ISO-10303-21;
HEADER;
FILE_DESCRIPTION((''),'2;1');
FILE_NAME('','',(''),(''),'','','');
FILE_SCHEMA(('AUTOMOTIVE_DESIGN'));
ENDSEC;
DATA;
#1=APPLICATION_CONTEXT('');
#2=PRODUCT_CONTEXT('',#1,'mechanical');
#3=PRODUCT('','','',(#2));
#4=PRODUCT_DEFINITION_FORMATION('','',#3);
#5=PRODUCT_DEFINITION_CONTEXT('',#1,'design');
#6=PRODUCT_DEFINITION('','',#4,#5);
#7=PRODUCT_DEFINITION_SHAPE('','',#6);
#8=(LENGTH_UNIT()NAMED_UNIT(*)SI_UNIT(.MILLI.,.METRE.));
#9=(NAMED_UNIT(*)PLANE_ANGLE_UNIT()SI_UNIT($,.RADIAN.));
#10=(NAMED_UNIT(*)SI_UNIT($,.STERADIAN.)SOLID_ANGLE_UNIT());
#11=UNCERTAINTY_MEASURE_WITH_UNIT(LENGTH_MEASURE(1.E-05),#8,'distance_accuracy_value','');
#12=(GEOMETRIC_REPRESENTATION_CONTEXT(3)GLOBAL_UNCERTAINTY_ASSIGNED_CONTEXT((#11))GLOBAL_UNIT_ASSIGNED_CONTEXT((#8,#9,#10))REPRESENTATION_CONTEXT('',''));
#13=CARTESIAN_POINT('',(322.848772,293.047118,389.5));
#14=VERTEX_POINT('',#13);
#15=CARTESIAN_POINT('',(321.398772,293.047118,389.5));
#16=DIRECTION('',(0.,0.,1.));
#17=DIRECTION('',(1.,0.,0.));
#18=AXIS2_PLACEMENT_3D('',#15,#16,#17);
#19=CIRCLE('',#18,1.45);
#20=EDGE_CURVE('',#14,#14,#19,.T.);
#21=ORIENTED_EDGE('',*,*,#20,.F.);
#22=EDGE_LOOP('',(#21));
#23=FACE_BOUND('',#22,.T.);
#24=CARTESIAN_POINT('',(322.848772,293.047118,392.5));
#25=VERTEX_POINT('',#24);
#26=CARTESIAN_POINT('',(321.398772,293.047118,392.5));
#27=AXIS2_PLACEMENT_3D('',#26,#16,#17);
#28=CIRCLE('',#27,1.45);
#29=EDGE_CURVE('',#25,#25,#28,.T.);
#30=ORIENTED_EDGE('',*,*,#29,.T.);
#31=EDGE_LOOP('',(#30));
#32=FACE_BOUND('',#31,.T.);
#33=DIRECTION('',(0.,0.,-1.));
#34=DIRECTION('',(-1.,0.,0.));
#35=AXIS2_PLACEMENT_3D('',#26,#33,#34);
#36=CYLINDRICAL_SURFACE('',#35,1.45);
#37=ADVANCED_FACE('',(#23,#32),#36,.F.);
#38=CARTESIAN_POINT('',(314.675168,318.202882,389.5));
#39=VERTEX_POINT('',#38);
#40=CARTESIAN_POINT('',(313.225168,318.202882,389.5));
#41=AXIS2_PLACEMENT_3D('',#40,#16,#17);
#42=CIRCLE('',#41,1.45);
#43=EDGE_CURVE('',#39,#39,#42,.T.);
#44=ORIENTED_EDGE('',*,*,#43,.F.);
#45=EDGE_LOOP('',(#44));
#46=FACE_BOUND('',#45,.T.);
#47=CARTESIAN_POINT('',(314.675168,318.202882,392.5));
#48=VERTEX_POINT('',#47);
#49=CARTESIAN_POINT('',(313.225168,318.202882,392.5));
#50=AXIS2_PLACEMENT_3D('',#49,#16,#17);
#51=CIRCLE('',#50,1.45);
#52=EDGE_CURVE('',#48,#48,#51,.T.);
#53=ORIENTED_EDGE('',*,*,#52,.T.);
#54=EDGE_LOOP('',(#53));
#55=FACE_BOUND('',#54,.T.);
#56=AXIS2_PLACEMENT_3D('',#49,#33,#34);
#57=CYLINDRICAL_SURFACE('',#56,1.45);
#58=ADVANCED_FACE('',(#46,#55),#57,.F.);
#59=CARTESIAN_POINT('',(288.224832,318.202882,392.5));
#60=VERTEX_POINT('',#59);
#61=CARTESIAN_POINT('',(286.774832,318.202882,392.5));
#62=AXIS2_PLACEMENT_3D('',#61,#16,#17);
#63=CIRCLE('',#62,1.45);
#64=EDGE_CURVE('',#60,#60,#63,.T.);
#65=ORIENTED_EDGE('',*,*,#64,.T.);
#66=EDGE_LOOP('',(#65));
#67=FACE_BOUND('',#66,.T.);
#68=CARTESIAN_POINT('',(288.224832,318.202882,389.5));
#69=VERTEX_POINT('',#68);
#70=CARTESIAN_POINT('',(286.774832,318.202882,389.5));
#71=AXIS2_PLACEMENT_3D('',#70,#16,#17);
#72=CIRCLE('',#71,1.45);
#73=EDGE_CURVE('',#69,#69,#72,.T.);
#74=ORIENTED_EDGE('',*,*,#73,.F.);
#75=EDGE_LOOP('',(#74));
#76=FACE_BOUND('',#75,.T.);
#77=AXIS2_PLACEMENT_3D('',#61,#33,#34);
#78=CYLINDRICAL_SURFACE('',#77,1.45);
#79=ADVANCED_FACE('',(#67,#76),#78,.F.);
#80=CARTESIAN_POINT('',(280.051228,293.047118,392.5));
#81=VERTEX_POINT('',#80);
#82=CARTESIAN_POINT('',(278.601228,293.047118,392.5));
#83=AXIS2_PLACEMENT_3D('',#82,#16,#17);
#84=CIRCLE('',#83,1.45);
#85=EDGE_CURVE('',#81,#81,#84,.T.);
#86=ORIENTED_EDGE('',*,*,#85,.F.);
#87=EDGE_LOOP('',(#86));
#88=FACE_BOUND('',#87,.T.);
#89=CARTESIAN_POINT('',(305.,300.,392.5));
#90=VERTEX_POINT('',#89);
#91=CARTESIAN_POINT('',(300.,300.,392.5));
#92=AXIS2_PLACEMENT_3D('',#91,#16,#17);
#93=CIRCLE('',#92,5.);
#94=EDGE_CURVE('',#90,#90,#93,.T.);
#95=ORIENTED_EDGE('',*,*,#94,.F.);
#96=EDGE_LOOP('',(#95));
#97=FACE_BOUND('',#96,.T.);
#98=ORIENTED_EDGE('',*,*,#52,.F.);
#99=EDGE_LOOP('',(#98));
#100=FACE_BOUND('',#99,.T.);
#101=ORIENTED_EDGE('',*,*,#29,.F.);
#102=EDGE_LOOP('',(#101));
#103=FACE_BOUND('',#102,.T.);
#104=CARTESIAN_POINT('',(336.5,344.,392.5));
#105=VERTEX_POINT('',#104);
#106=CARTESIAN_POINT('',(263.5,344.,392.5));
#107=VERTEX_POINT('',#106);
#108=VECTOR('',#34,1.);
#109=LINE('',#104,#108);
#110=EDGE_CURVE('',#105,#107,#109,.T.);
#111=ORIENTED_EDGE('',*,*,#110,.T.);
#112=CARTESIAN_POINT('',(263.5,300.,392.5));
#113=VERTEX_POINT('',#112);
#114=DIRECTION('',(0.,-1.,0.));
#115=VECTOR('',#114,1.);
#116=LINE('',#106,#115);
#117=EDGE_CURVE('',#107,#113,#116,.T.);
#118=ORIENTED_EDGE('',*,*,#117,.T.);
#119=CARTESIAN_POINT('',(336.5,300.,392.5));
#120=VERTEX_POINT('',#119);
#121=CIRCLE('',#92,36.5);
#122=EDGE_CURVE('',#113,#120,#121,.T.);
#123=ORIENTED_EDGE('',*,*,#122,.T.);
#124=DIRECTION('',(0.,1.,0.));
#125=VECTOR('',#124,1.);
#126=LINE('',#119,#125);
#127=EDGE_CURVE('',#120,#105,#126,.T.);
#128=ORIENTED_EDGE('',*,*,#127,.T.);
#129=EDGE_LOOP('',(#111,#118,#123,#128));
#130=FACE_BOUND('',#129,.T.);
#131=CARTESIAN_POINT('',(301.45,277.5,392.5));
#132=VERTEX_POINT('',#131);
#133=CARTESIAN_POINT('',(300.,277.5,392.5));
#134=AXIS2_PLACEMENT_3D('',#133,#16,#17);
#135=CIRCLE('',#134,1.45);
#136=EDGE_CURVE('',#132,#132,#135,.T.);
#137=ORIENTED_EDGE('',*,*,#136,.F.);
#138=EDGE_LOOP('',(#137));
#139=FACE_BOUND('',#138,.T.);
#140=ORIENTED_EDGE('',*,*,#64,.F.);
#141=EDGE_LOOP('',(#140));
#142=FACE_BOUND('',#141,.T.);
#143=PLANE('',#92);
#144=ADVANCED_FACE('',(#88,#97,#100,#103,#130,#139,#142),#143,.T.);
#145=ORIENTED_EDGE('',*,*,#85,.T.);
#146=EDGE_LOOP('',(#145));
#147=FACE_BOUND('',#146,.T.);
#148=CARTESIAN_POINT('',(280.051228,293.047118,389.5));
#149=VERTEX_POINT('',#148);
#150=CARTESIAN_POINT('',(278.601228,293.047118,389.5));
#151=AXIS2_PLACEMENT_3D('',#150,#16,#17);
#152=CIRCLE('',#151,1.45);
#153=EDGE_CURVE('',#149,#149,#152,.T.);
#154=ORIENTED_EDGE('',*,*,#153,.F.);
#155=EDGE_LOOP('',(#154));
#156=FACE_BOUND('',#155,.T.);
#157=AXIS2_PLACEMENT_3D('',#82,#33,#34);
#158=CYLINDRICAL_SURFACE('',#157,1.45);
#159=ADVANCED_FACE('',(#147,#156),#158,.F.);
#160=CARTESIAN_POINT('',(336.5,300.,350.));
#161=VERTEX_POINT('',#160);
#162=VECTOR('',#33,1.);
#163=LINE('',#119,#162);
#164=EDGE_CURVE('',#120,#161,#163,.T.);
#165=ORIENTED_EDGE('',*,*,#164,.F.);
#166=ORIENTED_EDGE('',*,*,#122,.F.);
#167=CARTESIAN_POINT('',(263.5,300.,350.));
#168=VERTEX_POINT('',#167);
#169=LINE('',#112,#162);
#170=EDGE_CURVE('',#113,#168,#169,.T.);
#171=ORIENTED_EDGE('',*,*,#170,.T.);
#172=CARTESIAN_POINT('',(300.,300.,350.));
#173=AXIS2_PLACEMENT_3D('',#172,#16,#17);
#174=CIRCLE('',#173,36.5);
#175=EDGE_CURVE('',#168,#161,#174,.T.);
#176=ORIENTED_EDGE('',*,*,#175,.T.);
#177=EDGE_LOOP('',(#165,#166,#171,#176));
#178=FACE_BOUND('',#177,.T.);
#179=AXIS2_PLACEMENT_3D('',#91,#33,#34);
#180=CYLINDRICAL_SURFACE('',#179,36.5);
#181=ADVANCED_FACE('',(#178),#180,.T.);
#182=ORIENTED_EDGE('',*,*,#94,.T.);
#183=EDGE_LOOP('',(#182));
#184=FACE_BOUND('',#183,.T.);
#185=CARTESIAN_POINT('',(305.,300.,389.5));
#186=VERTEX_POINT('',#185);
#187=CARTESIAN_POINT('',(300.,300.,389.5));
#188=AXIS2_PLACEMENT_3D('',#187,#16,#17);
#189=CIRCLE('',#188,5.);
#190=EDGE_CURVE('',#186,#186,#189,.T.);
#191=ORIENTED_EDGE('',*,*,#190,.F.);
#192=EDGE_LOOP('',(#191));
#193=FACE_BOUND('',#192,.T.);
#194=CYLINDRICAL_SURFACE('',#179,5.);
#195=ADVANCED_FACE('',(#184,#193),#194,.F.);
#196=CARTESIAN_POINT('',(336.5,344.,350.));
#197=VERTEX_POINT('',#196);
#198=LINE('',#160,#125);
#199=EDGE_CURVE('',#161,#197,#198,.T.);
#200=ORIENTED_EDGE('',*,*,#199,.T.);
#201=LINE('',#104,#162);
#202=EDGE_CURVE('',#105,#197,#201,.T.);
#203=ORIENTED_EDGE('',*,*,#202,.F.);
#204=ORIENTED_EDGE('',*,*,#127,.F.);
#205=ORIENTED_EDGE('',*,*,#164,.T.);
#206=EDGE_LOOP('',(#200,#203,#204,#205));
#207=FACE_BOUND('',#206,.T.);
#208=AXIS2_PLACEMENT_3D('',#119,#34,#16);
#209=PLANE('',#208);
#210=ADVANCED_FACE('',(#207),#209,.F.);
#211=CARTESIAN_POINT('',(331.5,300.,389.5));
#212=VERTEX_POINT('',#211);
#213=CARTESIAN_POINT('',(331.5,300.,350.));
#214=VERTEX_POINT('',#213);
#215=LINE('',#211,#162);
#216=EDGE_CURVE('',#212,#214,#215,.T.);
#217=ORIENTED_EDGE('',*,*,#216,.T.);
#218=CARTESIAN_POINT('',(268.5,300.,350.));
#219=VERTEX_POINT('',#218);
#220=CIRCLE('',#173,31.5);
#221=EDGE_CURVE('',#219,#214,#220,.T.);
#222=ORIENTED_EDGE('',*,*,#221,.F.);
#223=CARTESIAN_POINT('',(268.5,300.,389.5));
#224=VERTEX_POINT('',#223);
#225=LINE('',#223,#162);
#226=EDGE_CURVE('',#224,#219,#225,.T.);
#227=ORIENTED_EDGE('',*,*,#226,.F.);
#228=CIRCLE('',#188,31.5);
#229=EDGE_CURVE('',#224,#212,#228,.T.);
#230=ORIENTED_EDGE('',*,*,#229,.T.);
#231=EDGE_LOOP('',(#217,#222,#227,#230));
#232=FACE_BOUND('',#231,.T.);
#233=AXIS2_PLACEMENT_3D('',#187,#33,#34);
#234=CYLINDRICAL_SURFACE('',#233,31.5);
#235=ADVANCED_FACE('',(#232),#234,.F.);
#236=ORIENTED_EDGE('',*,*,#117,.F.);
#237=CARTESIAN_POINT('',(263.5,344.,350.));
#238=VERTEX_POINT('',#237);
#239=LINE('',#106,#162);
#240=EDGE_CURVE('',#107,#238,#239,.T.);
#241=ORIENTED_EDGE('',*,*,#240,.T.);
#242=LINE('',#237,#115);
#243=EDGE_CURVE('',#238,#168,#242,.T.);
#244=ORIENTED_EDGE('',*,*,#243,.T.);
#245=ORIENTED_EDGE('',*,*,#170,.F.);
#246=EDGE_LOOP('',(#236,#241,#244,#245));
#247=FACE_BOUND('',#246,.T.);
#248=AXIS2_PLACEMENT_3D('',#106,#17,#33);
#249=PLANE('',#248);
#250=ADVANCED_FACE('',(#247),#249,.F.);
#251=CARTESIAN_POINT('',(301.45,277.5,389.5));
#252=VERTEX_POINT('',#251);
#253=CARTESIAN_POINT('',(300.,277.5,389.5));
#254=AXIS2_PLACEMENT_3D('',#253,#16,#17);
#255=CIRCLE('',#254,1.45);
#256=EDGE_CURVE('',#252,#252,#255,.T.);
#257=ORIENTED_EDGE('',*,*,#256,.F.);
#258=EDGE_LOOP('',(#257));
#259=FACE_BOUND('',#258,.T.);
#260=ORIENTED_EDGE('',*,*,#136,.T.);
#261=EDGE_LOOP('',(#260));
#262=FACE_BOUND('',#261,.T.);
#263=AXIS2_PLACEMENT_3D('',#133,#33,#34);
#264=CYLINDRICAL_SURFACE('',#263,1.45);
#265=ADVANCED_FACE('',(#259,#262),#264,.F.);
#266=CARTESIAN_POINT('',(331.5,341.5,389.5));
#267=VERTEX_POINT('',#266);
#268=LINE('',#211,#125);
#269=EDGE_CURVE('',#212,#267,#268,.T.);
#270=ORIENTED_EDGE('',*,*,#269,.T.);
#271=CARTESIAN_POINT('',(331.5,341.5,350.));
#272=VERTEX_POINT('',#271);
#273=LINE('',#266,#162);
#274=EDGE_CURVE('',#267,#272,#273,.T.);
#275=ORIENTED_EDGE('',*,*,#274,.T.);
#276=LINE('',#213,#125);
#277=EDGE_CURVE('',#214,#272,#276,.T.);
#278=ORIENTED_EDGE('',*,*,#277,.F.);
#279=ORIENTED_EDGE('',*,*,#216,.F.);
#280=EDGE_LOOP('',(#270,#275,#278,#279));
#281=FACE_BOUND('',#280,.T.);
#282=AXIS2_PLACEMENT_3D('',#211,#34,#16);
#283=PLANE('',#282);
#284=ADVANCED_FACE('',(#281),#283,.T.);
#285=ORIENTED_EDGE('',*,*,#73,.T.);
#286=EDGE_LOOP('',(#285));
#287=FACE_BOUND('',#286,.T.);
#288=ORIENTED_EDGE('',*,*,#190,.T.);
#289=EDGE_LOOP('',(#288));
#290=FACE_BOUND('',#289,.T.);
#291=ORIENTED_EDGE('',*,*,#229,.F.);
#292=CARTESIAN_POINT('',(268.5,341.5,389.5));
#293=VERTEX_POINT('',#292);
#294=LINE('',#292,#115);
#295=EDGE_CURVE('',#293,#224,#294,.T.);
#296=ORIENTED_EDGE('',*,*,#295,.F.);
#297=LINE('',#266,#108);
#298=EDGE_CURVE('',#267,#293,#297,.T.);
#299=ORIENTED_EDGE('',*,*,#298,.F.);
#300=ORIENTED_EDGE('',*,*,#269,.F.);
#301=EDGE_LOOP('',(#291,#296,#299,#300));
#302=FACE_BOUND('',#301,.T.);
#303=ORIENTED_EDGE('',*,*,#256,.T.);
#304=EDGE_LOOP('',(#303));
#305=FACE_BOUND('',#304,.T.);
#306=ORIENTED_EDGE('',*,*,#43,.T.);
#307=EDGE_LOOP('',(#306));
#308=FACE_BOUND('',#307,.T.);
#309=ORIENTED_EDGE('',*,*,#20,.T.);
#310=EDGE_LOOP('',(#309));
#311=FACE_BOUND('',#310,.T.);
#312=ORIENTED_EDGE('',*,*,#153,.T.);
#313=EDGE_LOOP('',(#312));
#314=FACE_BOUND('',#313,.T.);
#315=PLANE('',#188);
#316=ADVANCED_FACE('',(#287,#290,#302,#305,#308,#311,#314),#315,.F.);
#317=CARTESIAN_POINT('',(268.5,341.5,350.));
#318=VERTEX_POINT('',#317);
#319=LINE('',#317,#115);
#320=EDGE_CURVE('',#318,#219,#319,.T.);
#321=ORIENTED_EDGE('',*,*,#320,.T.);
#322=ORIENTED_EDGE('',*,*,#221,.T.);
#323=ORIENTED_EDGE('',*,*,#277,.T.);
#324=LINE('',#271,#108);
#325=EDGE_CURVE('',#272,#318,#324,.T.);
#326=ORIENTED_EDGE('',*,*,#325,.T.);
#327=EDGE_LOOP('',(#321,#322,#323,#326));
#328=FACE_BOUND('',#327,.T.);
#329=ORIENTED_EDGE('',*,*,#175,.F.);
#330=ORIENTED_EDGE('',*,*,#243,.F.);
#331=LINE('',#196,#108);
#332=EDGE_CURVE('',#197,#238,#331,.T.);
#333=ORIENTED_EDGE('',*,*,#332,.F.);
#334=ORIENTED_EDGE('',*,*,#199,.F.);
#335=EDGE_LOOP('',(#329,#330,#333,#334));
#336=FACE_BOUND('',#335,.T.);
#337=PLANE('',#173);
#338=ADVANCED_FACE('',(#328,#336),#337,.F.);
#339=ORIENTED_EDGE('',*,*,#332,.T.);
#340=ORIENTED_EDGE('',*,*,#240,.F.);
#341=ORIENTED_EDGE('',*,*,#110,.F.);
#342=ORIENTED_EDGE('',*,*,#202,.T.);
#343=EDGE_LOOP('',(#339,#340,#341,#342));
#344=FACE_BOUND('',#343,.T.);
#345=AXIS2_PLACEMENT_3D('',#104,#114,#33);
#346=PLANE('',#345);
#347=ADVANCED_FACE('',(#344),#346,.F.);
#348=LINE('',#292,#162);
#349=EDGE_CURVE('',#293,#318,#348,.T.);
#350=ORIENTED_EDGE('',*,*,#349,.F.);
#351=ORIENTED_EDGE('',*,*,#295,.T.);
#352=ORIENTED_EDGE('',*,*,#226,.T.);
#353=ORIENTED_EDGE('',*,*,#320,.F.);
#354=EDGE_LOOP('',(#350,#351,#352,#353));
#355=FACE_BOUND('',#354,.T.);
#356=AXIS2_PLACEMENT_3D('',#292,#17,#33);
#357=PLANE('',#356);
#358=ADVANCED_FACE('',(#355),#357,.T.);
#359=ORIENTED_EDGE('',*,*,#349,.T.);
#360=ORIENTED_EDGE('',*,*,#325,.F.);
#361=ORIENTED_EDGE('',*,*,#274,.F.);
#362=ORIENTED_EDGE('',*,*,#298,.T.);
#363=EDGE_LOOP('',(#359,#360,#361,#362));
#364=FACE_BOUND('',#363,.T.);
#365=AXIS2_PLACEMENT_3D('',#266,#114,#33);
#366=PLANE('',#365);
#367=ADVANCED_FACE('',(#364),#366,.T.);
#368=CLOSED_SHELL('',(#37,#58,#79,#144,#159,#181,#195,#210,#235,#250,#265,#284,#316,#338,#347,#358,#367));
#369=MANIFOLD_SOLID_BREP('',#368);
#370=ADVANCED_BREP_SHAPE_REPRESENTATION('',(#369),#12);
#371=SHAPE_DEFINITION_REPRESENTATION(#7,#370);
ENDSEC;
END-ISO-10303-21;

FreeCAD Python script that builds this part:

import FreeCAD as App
import Part
import Sketcher
from FreeCAD import Vector

doc = App.newDocument("Part")
body = doc.addObject("PartDesign::Body", "Body")

# Sketch on XY plane
sketch1 = body.newObject("Sketcher::SketchObject", "Sketch")
sketch1.AttachmentSupport = (doc.getObject("XY_Plane"), [""])
sketch1.MapMode = "FlatFace"
sketch1.AttachmentOffset = App.Placement(Vector(0, 0, 350), App.Rotation())
sketch1.addGeometry(Part.Circle(Vector(300, 300, 0), Vector(0, 0, 1), 36), False)
sketch1.addConstraint(Sketcher.Constraint("Diameter", 0, 73.0))
sketch1.addConstraint(Sketcher.Constraint("DistanceX", -1, 1, 0, 3, 300.0))
sketch1.addConstraint(Sketcher.Constraint("DistanceY", -1, 1, 0, 3, 300.0))
pad1 = body.newObject("PartDesign::Pad", "Pad")
pad1.Profile = sketch1
pad1.Length = 42.5

# Sketch on XY plane
sketch2 = body.newObject("Sketcher::SketchObject", "Sketch001")
sketch2.AttachmentSupport = (doc.getObject("XY_Plane"), [""])
sketch2.MapMode = "FlatFace"
sketch2.AttachmentOffset = App.Placement(Vector(0, 0, 350), App.Rotation())
sketch2.addGeometry(Part.LineSegment(Vector(264, 344, 0), Vector(264, 300, 0)), False)
sketch2.addGeometry(Part.LineSegment(Vector(264, 300, 0), Vector(336, 300, 0)), False)
sketch2.addGeometry(Part.LineSegment(Vector(336, 300, 0), Vector(336, 344, 0)), False)
sketch2.addGeometry(Part.LineSegment(Vector(336, 344, 0), Vector(264, 344, 0)), False)
sketch2.addConstraint(Sketcher.Constraint("Coincident", 0, 2, 1, 1))
sketch2.addConstraint(Sketcher.Constraint("Coincident", 1, 2, 2, 1))
sketch2.addConstraint(Sketcher.Constraint("Coincident", 2, 2, 3, 1))
sketch2.addConstraint(Sketcher.Constraint("Coincident", 3, 2, 0, 1))
sketch2.addConstraint(Sketcher.Constraint("Vertical", 0))
sketch2.addConstraint(Sketcher.Constraint("Horizontal", 1))
sketch2.addConstraint(Sketcher.Constraint("Vertical", 2))
sketch2.addConstraint(Sketcher.Constraint("Horizontal", 3))
sketch2.addConstraint(Sketcher.Constraint("DistanceX", 1, 1, 1, 2, 73.0))
sketch2.addConstraint(Sketcher.Constraint("DistanceY", 0, 2, 0, 1, 44.0))
sketch2.addConstraint(Sketcher.Constraint("DistanceY", -1, 1, 0, 2, 300.0))
sketch2.addConstraint(Sketcher.Constraint("DistanceX", -1, 1, 0, 2, 263.5))
pad2 = body.newObject("PartDesign::Pad", "Pad001")
pad2.Profile = sketch2
pad2.Length = 42.5

# Sketch on XY plane
sketch3 = body.newObject("Sketcher::SketchObject", "Sketch002")
sketch3.AttachmentSupport = (doc.getObject("XY_Plane"), [""])
sketch3.MapMode = "FlatFace"
sketch3.AttachmentOffset = App.Placement(Vector(0, 0, 350), App.Rotation())
sketch3.addGeometry(Part.Circle(Vector(300, 300, 0), Vector(0, 0, 1), 32), False)
sketch3.addConstraint(Sketcher.Constraint("Diameter", 0, 63.0))
sketch3.addConstraint(Sketcher.Constraint("DistanceX", -1, 1, 0, 3, 300.0))
sketch3.addConstraint(Sketcher.Constraint("DistanceY", -1, 1, 0, 3, 300.0))
pocket1 = body.newObject("PartDesign::Pocket", "Pocket")
pocket1.Profile = sketch3
pocket1.Length = 39.5
pocket1.Reversed = True

# Sketch on XY plane
sketch4 = body.newObject("Sketcher::SketchObject", "Sketch003")
sketch4.AttachmentSupport = (doc.getObject("XY_Plane"), [""])
sketch4.MapMode = "FlatFace"
sketch4.AttachmentOffset = App.Placement(Vector(0, 0, 350), App.Rotation())
sketch4.addGeometry(Part.LineSegment(Vector(268, 342, 0), Vector(268, 300, 0)), False)
sketch4.addGeometry(Part.LineSegment(Vector(268, 300, 0), Vector(332, 300, 0)), False)
sketch4.addGeometry(Part.LineSegment(Vector(332, 300, 0), Vector(332, 342, 0)), False)
sketch4.addGeometry(Part.LineSegment(Vector(332, 342, 0), Vector(268, 342, 0)), False)
sketch4.addConstraint(Sketcher.Constraint("Coincident", 0, 2, 1, 1))
sketch4.addConstraint(Sketcher.Constraint("Coincident", 1, 2, 2, 1))
sketch4.addConstraint(Sketcher.Constraint("Coincident", 2, 2, 3, 1))
sketch4.addConstraint(Sketcher.Constraint("Coincident", 3, 2, 0, 1))
sketch4.addConstraint(Sketcher.Constraint("Vertical", 0))
sketch4.addConstraint(Sketcher.Constraint("Horizontal", 1))
sketch4.addConstraint(Sketcher.Constraint("Vertical", 2))
sketch4.addConstraint(Sketcher.Constraint("Horizontal", 3))
sketch4.addConstraint(Sketcher.Constraint("DistanceX", 1, 1, 1, 2, 63.0))
sketch4.addConstraint(Sketcher.Constraint("DistanceY", 0, 2, 0, 1, 41.5))
sketch4.addConstraint(Sketcher.Constraint("DistanceY", -1, 1, 0, 2, 300.0))
sketch4.addConstraint(Sketcher.Constraint("DistanceX", -1, 1, 0, 2, 268.5))
pocket2 = body.newObject("PartDesign::Pocket", "Pocket001")
pocket2.Profile = sketch4
pocket2.Length = 39.5
pocket2.Reversed = True

# Sketch on XY plane
sketch5 = body.newObject("Sketcher::SketchObject", "Sketch004")
sketch5.AttachmentSupport = (doc.getObject("XY_Plane"), [""])
sketch5.MapMode = "FlatFace"
sketch5.AttachmentOffset = App.Placement(Vector(0, 0, 389.5), App.Rotation())
sketch5.addGeometry(Part.Circle(Vector(300, 300, 0), Vector(0, 0, 1), 5), False)
sketch5.addGeometry(Part.Circle(Vector(286.8, 318.2, 0), Vector(0, 0, 1), 1.4), False)
sketch5.addGeometry(Part.Circle(Vector(278.6, 293, 0), Vector(0, 0, 1), 1.4), False)
sketch5.addGeometry(Part.Circle(Vector(300, 277.5, 0), Vector(0, 0, 1), 1.4), False)
sketch5.addGeometry(Part.Circle(Vector(321.4, 293, 0), Vector(0, 0, 1), 1.4), False)
sketch5.addGeometry(Part.Circle(Vector(313.2, 318.2, 0), Vector(0, 0, 1), 1.4), False)
sketch5.addConstraint(Sketcher.Constraint("Equal", 1, 2))
sketch5.addConstraint(Sketcher.Constraint("Equal", 2, 3))
sketch5.addConstraint(Sketcher.Constraint("Equal", 3, 4))
sketch5.addConstraint(Sketcher.Constraint("Equal", 4, 5))
sketch5.addConstraint(Sketcher.Constraint("Horizontal", 2, 3, 4, 3))
sketch5.addConstraint(Sketcher.Constraint("Horizontal", 1, 3, 5, 3))
sketch5.addConstraint(Sketcher.Constraint("Vertical", 0, 3, 3, 3))
sketch5.addConstraint(Sketcher.Constraint("Diameter", 0, 10.0))
sketch5.addConstraint(Sketcher.Constraint("Diameter", 1, 2.9))
sketch5.addConstraint(Sketcher.Constraint("DistanceX", -1, 1, 0, 3, 300.0))
sketch5.addConstraint(Sketcher.Constraint("DistanceY", -1, 1, 0, 3, 300.0))
sketch5.addConstraint(Sketcher.Constraint("DistanceY", -1, 1, 3, 3, 277.5))
sketch5.addConstraint(Sketcher.Constraint("DistanceX", -1, 1, 1, 3, 286.774832))
sketch5.addConstraint(Sketcher.Constraint("DistanceX", -1, 1, 2, 3, 278.601228))
sketch5.addConstraint(Sketcher.Constraint("DistanceX", -1, 1, 4, 3, 321.398772))
sketch5.addConstraint(Sketcher.Constraint("DistanceX", -1, 1, 5, 3, 313.225168))
sketch5.addConstraint(Sketcher.Constraint("DistanceY", -1, 1, 1, 3, 318.202882))
sketch5.addConstraint(Sketcher.Constraint("DistanceY", -1, 1, 2, 3, 293.047118))
pocket3 = body.newObject("PartDesign::Pocket", "Pocket002")
pocket3.Profile = sketch5
pocket3.Length = 3
pocket3.Reversed = True

doc.recompute()
